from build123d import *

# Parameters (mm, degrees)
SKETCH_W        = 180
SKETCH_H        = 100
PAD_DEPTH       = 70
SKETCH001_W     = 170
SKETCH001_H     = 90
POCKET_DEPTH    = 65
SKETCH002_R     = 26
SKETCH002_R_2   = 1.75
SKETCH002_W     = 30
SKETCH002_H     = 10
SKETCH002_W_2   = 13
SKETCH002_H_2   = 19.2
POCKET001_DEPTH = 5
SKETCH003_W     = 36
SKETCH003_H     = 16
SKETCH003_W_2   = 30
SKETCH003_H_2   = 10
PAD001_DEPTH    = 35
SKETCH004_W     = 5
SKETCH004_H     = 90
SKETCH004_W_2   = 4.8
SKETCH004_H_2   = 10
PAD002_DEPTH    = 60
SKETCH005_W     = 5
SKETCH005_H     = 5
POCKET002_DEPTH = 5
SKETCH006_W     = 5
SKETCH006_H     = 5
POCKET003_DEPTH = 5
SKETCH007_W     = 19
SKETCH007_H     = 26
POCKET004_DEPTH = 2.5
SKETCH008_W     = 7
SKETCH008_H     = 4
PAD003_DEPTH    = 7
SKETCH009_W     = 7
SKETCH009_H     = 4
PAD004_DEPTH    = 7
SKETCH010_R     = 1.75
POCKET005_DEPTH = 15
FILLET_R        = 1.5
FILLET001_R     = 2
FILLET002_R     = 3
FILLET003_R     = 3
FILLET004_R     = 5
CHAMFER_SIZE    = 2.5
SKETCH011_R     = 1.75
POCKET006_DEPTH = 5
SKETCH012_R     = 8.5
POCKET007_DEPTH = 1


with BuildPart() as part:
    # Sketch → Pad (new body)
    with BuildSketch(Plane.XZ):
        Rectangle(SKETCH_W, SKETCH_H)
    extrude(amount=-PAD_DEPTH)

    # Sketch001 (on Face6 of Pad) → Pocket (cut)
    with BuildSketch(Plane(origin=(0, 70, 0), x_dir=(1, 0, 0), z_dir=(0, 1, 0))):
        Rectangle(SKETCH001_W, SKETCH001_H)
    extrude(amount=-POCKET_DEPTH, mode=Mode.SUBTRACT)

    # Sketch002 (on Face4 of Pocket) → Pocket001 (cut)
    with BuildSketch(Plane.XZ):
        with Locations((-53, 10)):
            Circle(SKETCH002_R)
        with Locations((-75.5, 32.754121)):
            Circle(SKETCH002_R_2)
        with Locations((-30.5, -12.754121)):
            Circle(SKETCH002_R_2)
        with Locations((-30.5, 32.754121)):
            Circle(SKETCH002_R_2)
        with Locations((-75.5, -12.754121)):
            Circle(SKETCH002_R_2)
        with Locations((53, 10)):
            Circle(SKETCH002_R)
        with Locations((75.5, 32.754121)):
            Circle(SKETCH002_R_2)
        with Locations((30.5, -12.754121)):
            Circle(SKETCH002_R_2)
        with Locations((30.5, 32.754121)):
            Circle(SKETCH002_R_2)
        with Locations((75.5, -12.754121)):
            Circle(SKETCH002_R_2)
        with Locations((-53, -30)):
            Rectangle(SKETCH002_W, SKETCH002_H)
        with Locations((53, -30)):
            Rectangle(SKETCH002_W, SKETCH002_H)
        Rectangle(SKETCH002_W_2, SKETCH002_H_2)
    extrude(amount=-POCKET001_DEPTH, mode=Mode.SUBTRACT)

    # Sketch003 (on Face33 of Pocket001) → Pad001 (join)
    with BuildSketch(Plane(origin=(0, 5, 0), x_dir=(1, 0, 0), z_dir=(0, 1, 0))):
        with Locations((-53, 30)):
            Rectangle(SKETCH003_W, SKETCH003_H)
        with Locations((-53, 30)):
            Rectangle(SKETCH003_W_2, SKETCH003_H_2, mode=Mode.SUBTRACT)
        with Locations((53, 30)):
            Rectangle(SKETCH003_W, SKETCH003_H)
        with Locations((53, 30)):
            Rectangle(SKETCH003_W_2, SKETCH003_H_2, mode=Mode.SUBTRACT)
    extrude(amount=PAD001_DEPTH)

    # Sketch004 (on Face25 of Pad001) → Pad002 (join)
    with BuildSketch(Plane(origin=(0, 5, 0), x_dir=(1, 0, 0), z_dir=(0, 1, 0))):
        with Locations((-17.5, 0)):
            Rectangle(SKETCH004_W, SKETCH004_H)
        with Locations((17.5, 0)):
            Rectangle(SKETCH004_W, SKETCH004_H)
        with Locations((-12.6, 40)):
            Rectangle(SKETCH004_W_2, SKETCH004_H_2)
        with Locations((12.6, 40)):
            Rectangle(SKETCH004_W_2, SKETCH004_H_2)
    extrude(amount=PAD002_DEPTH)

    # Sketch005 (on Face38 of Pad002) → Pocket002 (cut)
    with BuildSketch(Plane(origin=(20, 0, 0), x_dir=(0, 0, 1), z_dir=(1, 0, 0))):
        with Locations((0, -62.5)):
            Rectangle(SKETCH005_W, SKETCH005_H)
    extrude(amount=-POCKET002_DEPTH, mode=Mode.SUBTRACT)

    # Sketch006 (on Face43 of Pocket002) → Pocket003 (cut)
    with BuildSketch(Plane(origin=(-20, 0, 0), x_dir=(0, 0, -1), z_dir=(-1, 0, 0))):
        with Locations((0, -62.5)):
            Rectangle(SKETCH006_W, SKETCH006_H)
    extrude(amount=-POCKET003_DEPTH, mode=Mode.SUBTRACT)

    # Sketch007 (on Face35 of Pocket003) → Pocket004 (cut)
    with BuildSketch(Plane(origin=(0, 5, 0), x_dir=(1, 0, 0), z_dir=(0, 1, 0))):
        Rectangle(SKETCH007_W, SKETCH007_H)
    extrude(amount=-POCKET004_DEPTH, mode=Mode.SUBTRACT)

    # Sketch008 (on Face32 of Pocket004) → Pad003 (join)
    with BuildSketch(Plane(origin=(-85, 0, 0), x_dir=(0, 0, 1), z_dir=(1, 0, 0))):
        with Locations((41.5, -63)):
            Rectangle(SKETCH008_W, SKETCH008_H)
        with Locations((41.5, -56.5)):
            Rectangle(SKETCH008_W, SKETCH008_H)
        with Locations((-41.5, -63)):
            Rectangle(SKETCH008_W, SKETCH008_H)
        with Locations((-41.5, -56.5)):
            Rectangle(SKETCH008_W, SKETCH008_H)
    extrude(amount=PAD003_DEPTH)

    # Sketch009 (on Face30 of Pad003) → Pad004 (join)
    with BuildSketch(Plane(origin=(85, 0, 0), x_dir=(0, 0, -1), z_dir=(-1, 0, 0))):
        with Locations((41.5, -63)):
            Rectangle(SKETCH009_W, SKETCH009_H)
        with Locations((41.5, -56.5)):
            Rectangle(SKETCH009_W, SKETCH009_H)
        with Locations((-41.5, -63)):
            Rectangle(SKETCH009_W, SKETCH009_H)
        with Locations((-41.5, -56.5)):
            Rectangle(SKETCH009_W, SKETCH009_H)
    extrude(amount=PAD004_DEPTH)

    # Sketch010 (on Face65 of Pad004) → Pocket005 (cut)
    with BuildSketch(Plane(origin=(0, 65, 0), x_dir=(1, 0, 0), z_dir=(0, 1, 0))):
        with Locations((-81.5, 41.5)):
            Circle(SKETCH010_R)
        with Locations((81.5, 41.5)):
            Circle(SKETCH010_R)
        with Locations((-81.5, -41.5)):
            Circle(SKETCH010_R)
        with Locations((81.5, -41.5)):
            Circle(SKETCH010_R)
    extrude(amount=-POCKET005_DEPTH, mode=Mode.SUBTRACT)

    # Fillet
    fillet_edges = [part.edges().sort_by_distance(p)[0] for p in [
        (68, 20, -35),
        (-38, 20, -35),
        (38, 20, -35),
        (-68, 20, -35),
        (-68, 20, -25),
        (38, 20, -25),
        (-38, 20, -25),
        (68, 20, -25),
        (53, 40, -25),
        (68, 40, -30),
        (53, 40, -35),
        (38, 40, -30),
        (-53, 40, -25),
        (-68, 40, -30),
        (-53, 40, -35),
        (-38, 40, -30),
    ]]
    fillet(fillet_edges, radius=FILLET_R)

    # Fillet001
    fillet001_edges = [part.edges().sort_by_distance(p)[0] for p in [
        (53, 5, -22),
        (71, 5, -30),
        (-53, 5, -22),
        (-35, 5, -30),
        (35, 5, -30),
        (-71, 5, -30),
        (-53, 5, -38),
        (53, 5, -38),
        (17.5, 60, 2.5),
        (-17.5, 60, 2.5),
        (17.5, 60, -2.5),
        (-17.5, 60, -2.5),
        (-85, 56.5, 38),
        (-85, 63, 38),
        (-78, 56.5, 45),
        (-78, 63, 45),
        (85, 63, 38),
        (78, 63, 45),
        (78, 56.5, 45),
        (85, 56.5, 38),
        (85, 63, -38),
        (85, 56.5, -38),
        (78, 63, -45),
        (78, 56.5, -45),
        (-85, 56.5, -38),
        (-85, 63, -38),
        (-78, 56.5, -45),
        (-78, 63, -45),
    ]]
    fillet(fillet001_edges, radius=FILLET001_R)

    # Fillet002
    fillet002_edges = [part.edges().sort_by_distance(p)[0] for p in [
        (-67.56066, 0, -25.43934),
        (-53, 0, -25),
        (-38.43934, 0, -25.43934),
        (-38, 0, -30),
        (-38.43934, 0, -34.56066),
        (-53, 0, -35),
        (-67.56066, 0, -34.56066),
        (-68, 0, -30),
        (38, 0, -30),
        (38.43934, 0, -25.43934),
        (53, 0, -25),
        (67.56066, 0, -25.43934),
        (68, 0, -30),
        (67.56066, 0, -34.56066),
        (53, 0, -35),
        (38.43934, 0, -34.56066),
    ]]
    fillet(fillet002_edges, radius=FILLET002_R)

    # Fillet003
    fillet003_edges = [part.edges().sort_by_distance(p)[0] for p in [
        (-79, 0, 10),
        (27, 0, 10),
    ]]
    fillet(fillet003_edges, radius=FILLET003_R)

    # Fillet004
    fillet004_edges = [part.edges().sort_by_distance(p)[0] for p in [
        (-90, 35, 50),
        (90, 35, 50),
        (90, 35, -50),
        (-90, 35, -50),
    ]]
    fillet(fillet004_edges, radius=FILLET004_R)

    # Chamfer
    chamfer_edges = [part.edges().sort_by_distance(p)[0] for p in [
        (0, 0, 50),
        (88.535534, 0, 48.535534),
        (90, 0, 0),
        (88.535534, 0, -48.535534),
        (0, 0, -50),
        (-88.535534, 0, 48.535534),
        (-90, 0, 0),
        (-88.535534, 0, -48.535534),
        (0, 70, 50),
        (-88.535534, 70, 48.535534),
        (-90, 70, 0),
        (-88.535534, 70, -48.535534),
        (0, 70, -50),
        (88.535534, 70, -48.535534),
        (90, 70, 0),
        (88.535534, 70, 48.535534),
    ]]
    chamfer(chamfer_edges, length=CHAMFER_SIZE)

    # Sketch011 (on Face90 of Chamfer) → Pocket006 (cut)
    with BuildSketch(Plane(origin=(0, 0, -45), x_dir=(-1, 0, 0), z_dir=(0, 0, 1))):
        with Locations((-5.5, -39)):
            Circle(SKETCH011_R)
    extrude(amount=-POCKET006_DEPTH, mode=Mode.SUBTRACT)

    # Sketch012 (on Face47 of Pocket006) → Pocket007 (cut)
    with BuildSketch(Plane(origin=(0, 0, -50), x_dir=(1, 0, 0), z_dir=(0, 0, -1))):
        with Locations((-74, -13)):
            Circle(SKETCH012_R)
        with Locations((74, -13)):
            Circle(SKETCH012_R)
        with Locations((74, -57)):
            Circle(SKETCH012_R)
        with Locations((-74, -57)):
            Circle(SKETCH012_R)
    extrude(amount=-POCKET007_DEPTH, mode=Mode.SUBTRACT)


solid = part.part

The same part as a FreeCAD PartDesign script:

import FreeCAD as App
import Part
import Sketcher


def edges_at(feature, points):
    """Names of the edges that pass closest to the given points."""
    edges = feature.Shape.Edges
    near = lambda p: min(range(len(edges)), key=lambda i: edges[i].distToShape(Part.Vertex(*p))[0])
    return sorted({f"Edge{near(p) + 1}" for p in points})

doc = App.newDocument("Part")
params = doc.addObject("Spreadsheet::Sheet", "Params")
for row, (alias, value) in enumerate([
    ("sketch1_width", "180 mm"),
    ("sketch1_height", "100 mm"),
    ("pad1_length", "70 mm"),
    ("sketch2_width", "170 mm"),
    ("sketch2_height", "90 mm"),
    ("pocket1_length", "65 mm"),
    ("sketch3_diameter", "52 mm"),
    ("sketch3_diameter2", "3.5 mm"),
    ("sketch3_width", "30 mm"),
    ("sketch3_width2", "13 mm"),
    ("sketch3_height", "10 mm"),
    ("pocket2_length", "5 mm"),
    ("sketch4_width", "36 mm"),
    ("sketch4_width2", "30 mm"),
    ("sketch4_height", "16 mm"),
    ("sketch4_height2", "10 mm"),
    ("pad2_length", "35 mm"),
    ("sketch5_width", "5 mm"),
    ("sketch5_height", "90 mm"),
    ("sketch5_height2", "80 mm"),
    ("sketch5_width2", "4.8 mm"),
    ("pad3_length", "60 mm"),
    ("sketch6_width", "5 mm"),
    ("pocket3_length", "5 mm"),
    ("sketch7_width", "5 mm"),
    ("pocket4_length", "5 mm"),
    ("sketch8_width", "19 mm"),
    ("sketch8_height", "26 mm"),
    ("pocket5_length", "2.5 mm"),
    ("sketch9_width", "4 mm"),
    ("sketch9_height", "7 mm"),
    ("pad4_length", "7 mm"),
    ("sketch10_width", "4 mm"),
    ("sketch10_height", "7 mm"),
    ("pad5_length", "7 mm"),
    ("sketch11_diameter", "3.5 mm"),
    ("pocket6_length", "15 mm"),
    ("fillet_radius", "1.5 mm"),
    ("fillet2_radius", "2 mm"),
    ("fillet3_radius", "3 mm"),
    ("fillet4_radius", "3 mm"),
    ("fillet5_radius", "5 mm"),
    ("chamfer_size", "2.5 mm"),
    ("sketch12_diameter", "3.5 mm"),
    ("pocket7_length", "5 mm"),
    ("sketch13_diameter", "17 mm"),
    ("pocket8_length", "1 mm"),
], start=1):
    params.set(f"A{row}", alias)
    params.set(f"B{row}", "=" + value)
    params.setAlias(f"B{row}", alias)

body = doc.addObject("PartDesign::Body", "Body")

# Sketch on XZ plane
sketch1 = doc.addObject("Sketcher::SketchObject", "Sketch")
body.addObject(sketch1)
sketch1.AttachmentSupport = (doc.XZ_Plane, [""])
sketch1.MapMode = "FlatFace"
sketch1.addGeometry([
    Part.LineSegment(App.Vector(-90, 50, 0), App.Vector(-90, -50, 0)),
    Part.LineSegment(App.Vector(-90, -50, 0), App.Vector(90, -50, 0)),
    Part.LineSegment(App.Vector(90, -50, 0), App.Vector(90, 50, 0)),
    Part.LineSegment(App.Vector(90, 50, 0), App.Vector(-90, 50, 0)),
], False)
sketch1.addConstraint([
    Sketcher.Constraint("Coincident", 0, 2, 1, 1),
    Sketcher.Constraint("Coincident", 1, 2, 2, 1),
    Sketcher.Constraint("Coincident", 2, 2, 3, 1),
    Sketcher.Constraint("Coincident", 3, 2, 0, 1),
    Sketcher.Constraint("Vertical", 0),
    Sketcher.Constraint("Horizontal", 1),
    Sketcher.Constraint("Vertical", 2),
    Sketcher.Constraint("Horizontal", 3),
    Sketcher.Constraint("Symmetric", 0, 2, 2, 2, -1, 1),
    Sketcher.Constraint("DistanceX", 1, 1, 1, 2, 180.0),
    Sketcher.Constraint("DistanceY", 0, 2, 0, 1, 100.0),
])
sketch1.setExpression("Constraints[9]", "Params.sketch1_width")
sketch1.setExpression("Constraints[10]", "Params.sketch1_height")
pad1 = doc.addObject("PartDesign::Pad", "Pad")
body.addObject(pad1)
pad1.Profile = sketch1
pad1.setExpression("Length", "Params.pad1_length")
pad1.Reversed = True

# Sketch on XZ plane
sketch2 = doc.addObject("Sketcher::SketchObject", "Sketch001")
body.addObject(sketch2)
sketch2.AttachmentSupport = (doc.XZ_Plane, [""])
sketch2.MapMode = "FlatFace"
sketch2.AttachmentOffset = App.Placement(App.Vector(0, 0, -70), App.Rotation())
sketch2.addGeometry([
    Part.LineSegment(App.Vector(-85, -45, 0), App.Vector(-85, 45, 0)),
    Part.LineSegment(App.Vector(-85, 45, 0), App.Vector(85, 45, 0)),
    Part.LineSegment(App.Vector(85, 45, 0), App.Vector(85, -45, 0)),
    Part.LineSegment(App.Vector(85, -45, 0), App.Vector(-85, -45, 0)),
], False)
sketch2.addConstraint([
    Sketcher.Constraint("Coincident", 0, 2, 1, 1),
    Sketcher.Constraint("Coincident", 1, 2, 2, 1),
    Sketcher.Constraint("Coincident", 2, 2, 3, 1),
    Sketcher.Constraint("Coincident", 3, 2, 0, 1),
    Sketcher.Constraint("Vertical", 0),
    Sketcher.Constraint("Horizontal", 1),
    Sketcher.Constraint("Vertical", 2),
    Sketcher.Constraint("Horizontal", 3),
    Sketcher.Constraint("Symmetric", 0, 2, 2, 2, -1, 1),
    Sketcher.Constraint("DistanceX", 1, 1, 1, 2, 170.0),
    Sketcher.Constraint("DistanceY", 0, 1, 0, 2, 90.0),
])
sketch2.setExpression("Constraints[9]", "Params.sketch2_width")
sketch2.setExpression("Constraints[10]", "Params.sketch2_height")
pocket1 = doc.addObject("PartDesign::Pocket", "Pocket")
body.addObject(pocket1)
pocket1.Profile = sketch2
pocket1.setExpression("Length", "Params.pocket1_length")
pocket1.Reversed = True

# Sketch on XZ plane
sketch3 = doc.addObject("Sketcher::SketchObject", "Sketch002")
body.addObject(sketch3)
sketch3.AttachmentSupport = (doc.XZ_Plane, [""])
sketch3.MapMode = "FlatFace"
sketch3.addGeometry([
    Part.Circle(App.Vector(-53, 10, 0), App.Vector(0, 0, 1), 26),  # 0
    Part.Circle(App.Vector(-75.5, 32.754121, 0), App.Vector(0, 0, 1), 1.75),  # 1
    Part.Circle(App.Vector(-30.5, -12.754121, 0), App.Vector(0, 0, 1), 1.75),  # 2
    Part.Circle(App.Vector(-30.5, 32.754121, 0), App.Vector(0, 0, 1), 1.75),  # 3
    Part.Circle(App.Vector(-75.5, -12.754121, 0), App.Vector(0, 0, 1), 1.75),  # 4
    Part.Circle(App.Vector(53, 10, 0), App.Vector(0, 0, 1), 26),  # 5
    Part.Circle(App.Vector(75.5, 32.754121, 0), App.Vector(0, 0, 1), 1.75),  # 6
    Part.Circle(App.Vector(30.5, -12.754121, 0), App.Vector(0, 0, 1), 1.75),  # 7
    Part.Circle(App.Vector(30.5, 32.754121, 0), App.Vector(0, 0, 1), 1.75),  # 8
    Part.Circle(App.Vector(75.5, -12.754121, 0), App.Vector(0, 0, 1), 1.75),  # 9
    Part.LineSegment(App.Vector(-68, -25, 0), App.Vector(-68, -35, 0)),  # 10
    Part.LineSegment(App.Vector(-68, -35, 0), App.Vector(-38, -35, 0)),  # 11
    Part.LineSegment(App.Vector(-38, -35, 0), App.Vector(-38, -25, 0)),  # 12
    Part.LineSegment(App.Vector(-38, -25, 0), App.Vector(-68, -25, 0)),  # 13
    Part.LineSegment(App.Vector(38, -25, 0), App.Vector(38, -35, 0)),  # 14
    Part.LineSegment(App.Vector(38, -35, 0), App.Vector(68, -35, 0)),  # 15
    Part.LineSegment(App.Vector(68, -35, 0), App.Vector(68, -25, 0)),  # 16
    Part.LineSegment(App.Vector(68, -25, 0), App.Vector(38, -25, 0)),  # 17
    Part.LineSegment(App.Vector(-6.5, 9.6, 0), App.Vector(-6.5, -9.6, 0)),  # 18
    Part.LineSegment(App.Vector(-6.5, -9.6, 0), App.Vector(6.5, -9.6, 0)),  # 19
    Part.LineSegment(App.Vector(6.5, -9.6, 0), App.Vector(6.5, 9.6, 0)),  # 20
    Part.LineSegment(App.Vector(6.5, 9.6, 0), App.Vector(-6.5, 9.6, 0)),  # 21
], False)
sketch3.addConstraint([
    Sketcher.Constraint("Coincident", 10, 2, 11, 1),
    Sketcher.Constraint("Coincident", 11, 2, 12, 1),
    Sketcher.Constraint("Coincident", 12, 2, 13, 1),
    Sketcher.Constraint("Coincident", 13, 2, 10, 1),
    Sketcher.Constraint("Coincident", 14, 2, 15, 1),
    Sketcher.Constraint("Coincident", 15, 2, 16, 1),
    Sketcher.Constraint("Coincident", 16, 2, 17, 1),
    Sketcher.Constraint("Coincident", 17, 2, 14, 1),
    Sketcher.Constraint("Coincident", 18, 2, 19, 1),
    Sketcher.Constraint("Coincident", 19, 2, 20, 1),
    Sketcher.Constraint("Coincident", 20, 2, 21, 1),
    Sketcher.Constraint("Coincident", 21, 2, 18, 1),
    Sketcher.Constraint("Vertical", 10),
    Sketcher.Constraint("Horizontal", 11),
    Sketcher.Constraint("Vertical", 12),
    Sketcher.Constraint("Horizontal", 13),
    Sketcher.Constraint("Vertical", 14),
    Sketcher.Constraint("Horizontal", 15),
    Sketcher.Constraint("Vertical", 16),
    Sketcher.Constraint("Horizontal", 17),
    Sketcher.Constraint("Vertical", 18),
    Sketcher.Constraint("Horizontal", 19),
    Sketcher.Constraint("Vertical", 20),
    Sketcher.Constraint("Horizontal", 21),
    Sketcher.Constraint("Equal", 1, 2),
    Sketcher.Constraint("Equal", 2, 3),
    Sketcher.Constraint("Equal", 3, 4),
    Sketcher.Constraint("Equal", 0, 5),
    Sketcher.Constraint("Equal", 4, 6),
    Sketcher.Constraint("Equal", 6, 7),
    Sketcher.Constraint("Equal", 7, 8),
    Sketcher.Constraint("Equal", 8, 9),
    Sketcher.Constraint("Symmetric", 18, 2, 20, 2, -1, 1),
    Sketcher.Constraint("Symmetric", 0, 3, 5, 3, -2),
    Sketcher.Constraint("Symmetric", 1, 3, 6, 3, -2),
    Sketcher.Constraint("Symmetric", 2, 3, 7, 3, -2),
    Sketcher.Constraint("Symmetric", 3, 3, 8, 3, -2),
    Sketcher.Constraint("Symmetric", 4, 3, 9, 3, -2),
    Sketcher.Constraint("Symmetric", 11, 2, 14, 2, -2),
    Sketcher.Constraint("Symmetric", 13, 2, 16, 2, -2),
    Sketcher.Constraint("Horizontal", 1, 3, 3, 3),
    Sketcher.Constraint("Horizontal", 2, 3, 4, 3),
    Sketcher.Constraint("Vertical", 2, 3, 3, 3),
    Sketcher.Constraint("Vertical", 1, 3, 4, 3),
    Sketcher.Constraint("Diameter", 0, 52.0),
    Sketcher.Constraint("Diameter", 1, 3.5),
    Sketcher.Constraint("DistanceX", 11, 1, 11, 2, 30.0),
    Sketcher.Constraint("DistanceX", 19, 1, 19, 2, 13.0),
    Sketcher.Constraint("DistanceY", 10, 2, 10, 1, 10.0),
    Sketcher.Constraint("DistanceY", 18, 2, 18, 1, 19.2),
    Sketcher.Constraint("DistanceX", 0, 3, -1, 1, 53.0),
    Sketcher.Constraint("DistanceY", -1, 1, 0, 3, 10.0),
    Sketcher.Constraint("DistanceX", 10, 2, -1, 1, 68.0),
    Sketcher.Constraint("DistanceY", 10, 2, -1, 1, 35.0),
    Sketcher.Constraint("DistanceX", 1, 3, 2, 3, 45.0),
    Sketcher.Constraint("DistanceX", 3, 3, 6, 3, 106.0),
    Sketcher.Constraint("DistanceY", -1, 1, 1, 3, 32.754121),
    Sketcher.Constraint("DistanceY", 2, 3, -1, 1, 12.754121),
])
sketch3.setExpression("Constraints[44]", "Params.sketch3_diameter")
sketch3.setExpression("Constraints[45]", "Params.sketch3_diameter2")
sketch3.setExpression("Constraints[46]", "Params.sketch3_width")
sketch3.setExpression("Constraints[47]", "Params.sketch3_width2")
sketch3.setExpression("Constraints[48]", "Params.sketch3_height")
pocket2 = doc.addObject("PartDesign::Pocket", "Pocket001")
body.addObject(pocket2)
pocket2.Profile = sketch3
pocket2.setExpression("Length", "Params.pocket2_length")

# Sketch on XZ plane
sketch4 = doc.addObject("Sketcher::SketchObject", "Sketch003")
body.addObject(sketch4)
sketch4.AttachmentSupport = (doc.XZ_Plane, [""])
sketch4.MapMode = "FlatFace"
sketch4.AttachmentOffset = App.Placement(App.Vector(0, 0, -5), App.Rotation())
sketch4.addGeometry([
    Part.LineSegment(App.Vector(-71, -38, 0), App.Vector(-71, -22, 0)),  # 0
    Part.LineSegment(App.Vector(-71, -22, 0), App.Vector(-35, -22, 0)),  # 1
    Part.LineSegment(App.Vector(-35, -22, 0), App.Vector(-35, -38, 0)),  # 2
    Part.LineSegment(App.Vector(-35, -38, 0), App.Vector(-71, -38, 0)),  # 3
    Part.LineSegment(App.Vector(-38, -25, 0), App.Vector(-68, -25, 0)),  # 4
    Part.LineSegment(App.Vector(-68, -25, 0), App.Vector(-68, -35, 0)),  # 5
    Part.LineSegment(App.Vector(-68, -35, 0), App.Vector(-38, -35, 0)),  # 6
    Part.LineSegment(App.Vector(-38, -35, 0), App.Vector(-38, -25, 0)),  # 7
    Part.LineSegment(App.Vector(35, -38, 0), App.Vector(35, -22, 0)),  # 8
    Part.LineSegment(App.Vector(35, -22, 0), App.Vector(71, -22, 0)),  # 9
    Part.LineSegment(App.Vector(71, -22, 0), App.Vector(71, -38, 0)),  # 10
    Part.LineSegment(App.Vector(71, -38, 0), App.Vector(35, -38, 0)),  # 11
    Part.LineSegment(App.Vector(68, -25, 0), App.Vector(38, -25, 0)),  # 12
    Part.LineSegment(App.Vector(38, -25, 0), App.Vector(38, -35, 0)),  # 13
    Part.LineSegment(App.Vector(38, -35, 0), App.Vector(68, -35, 0)),  # 14
    Part.LineSegment(App.Vector(68, -35, 0), App.Vector(68, -25, 0)),  # 15
], False)
sketch4.addConstraint([
    Sketcher.Constraint("Coincident", 0, 2, 1, 1),
    Sketcher.Constraint("Coincident", 1, 2, 2, 1),
    Sketcher.Constraint("Coincident", 2, 2, 3, 1),
    Sketcher.Constraint("Coincident", 3, 2, 0, 1),
    Sketcher.Constraint("Coincident", 4, 2, 5, 1),
    Sketcher.Constraint("Coincident", 5, 2, 6, 1),
    Sketcher.Constraint("Coincident", 6, 2, 7, 1),
    Sketcher.Constraint("Coincident", 7, 2, 4, 1),
    Sketcher.Constraint("Coincident", 8, 2, 9, 1),
    Sketcher.Constraint("Coincident", 9, 2, 10, 1),
    Sketcher.Constraint("Coincident", 10, 2, 11, 1),
    Sketcher.Constraint("Coincident", 11, 2, 8, 1),
    Sketcher.Constraint("Coincident", 12, 2, 13, 1),
    Sketcher.Constraint("Coincident", 13, 2, 14, 1),
    Sketcher.Constraint("Coincident", 14, 2, 15, 1),
    Sketcher.Constraint("Coincident", 15, 2, 12, 1),
    Sketcher.Constraint("Vertical", 0),
    Sketcher.Constraint("Horizontal", 1),
    Sketcher.Constraint("Vertical", 2),
    Sketcher.Constraint("Horizontal", 3),
    Sketcher.Constraint("Horizontal", 4),
    Sketcher.Constraint("Vertical", 5),
    Sketcher.Constraint("Horizontal", 6),
    Sketcher.Constraint("Vertical", 7),
    Sketcher.Constraint("Vertical", 8),
    Sketcher.Constraint("Horizontal", 9),
    Sketcher.Constraint("Vertical", 10),
    Sketcher.Constraint("Horizontal", 11),
    Sketcher.Constraint("Horizontal", 12),
    Sketcher.Constraint("Vertical", 13),
    Sketcher.Constraint("Horizontal", 14),
    Sketcher.Constraint("Vertical", 15),
    Sketcher.Constraint("Symmetric", 1, 2, 8, 2, -2),
    Sketcher.Constraint("Symmetric", 3, 2, 10, 2, -2),
    Sketcher.Constraint("Symmetric", 7, 2, 12, 2, -2),
    Sketcher.Constraint("Symmetric", 5, 2, 14, 2, -2),
    Sketcher.Constraint("DistanceX", 1, 1, 1, 2, 36.0),
    Sketcher.Constraint("DistanceX", 4, 2, 4, 1, 30.0),
    Sketcher.Constraint("DistanceY", 0, 1, 0, 2, 16.0),
    Sketcher.Constraint("DistanceY", 5, 2, 5, 1, 10.0),
    Sketcher.Constraint("DistanceX", 0, 2, -1, 1, 71.0),
    Sketcher.Constraint("DistanceY", 0, 2, -1, 1, 22.0),
    Sketcher.Constraint("DistanceX", 4, 2, -1, 1, 68.0),
    Sketcher.Constraint("DistanceY", 4, 2, -1, 1, 25.0),
])
sketch4.setExpression("Constraints[36]", "Params.sketch4_width")
sketch4.setExpression("Constraints[37]", "Params.sketch4_width2")
sketch4.setExpression("Constraints[38]", "Params.sketch4_height")
sketch4.setExpression("Constraints[39]", "Params.sketch4_height2")
pad2 = doc.addObject("PartDesign::Pad", "Pad001")
body.addObject(pad2)
pad2.Profile = sketch4
pad2.setExpression("Length", "Params.pad2_length")
pad2.Reversed = True

# Sketch on XZ plane
sketch5 = doc.addObject("Sketcher::SketchObject", "Sketch004")
body.addObject(sketch5)
sketch5.AttachmentSupport = (doc.XZ_Plane, [""])
sketch5.MapMode = "FlatFace"
sketch5.AttachmentOffset = App.Placement(App.Vector(0, 0, -5), App.Rotation())
sketch5.addGeometry([
    Part.LineSegment(App.Vector(-20, -45, 0), App.Vector(-20, 45, 0)),  # 0
    Part.LineSegment(App.Vector(-20, 45, 0), App.Vector(-15, 45, 0)),  # 1
    Part.LineSegment(App.Vector(-15, 45, 0), App.Vector(-15, -35, 0)),  # 2
    Part.LineSegment(App.Vector(-15, -35, 0), App.Vector(-10.2, -35, 0)),  # 3
    Part.LineSegment(App.Vector(-10.2, -35, 0), App.Vector(-10.2, -45, 0)),  # 4
    Part.LineSegment(App.Vector(-10.2, -45, 0), App.Vector(-20, -45, 0)),  # 5
    Part.LineSegment(App.Vector(15, -35, 0), App.Vector(15, 45, 0)),  # 6
    Part.LineSegment(App.Vector(15, 45, 0), App.Vector(20, 45, 0)),  # 7
    Part.LineSegment(App.Vector(20, 45, 0), App.Vector(20, -45, 0)),  # 8
    Part.LineSegment(App.Vector(20, -45, 0), App.Vector(10.2, -45, 0)),  # 9
    Part.LineSegment(App.Vector(10.2, -45, 0), App.Vector(10.2, -35, 0)),  # 10
    Part.LineSegment(App.Vector(10.2, -35, 0), App.Vector(15, -35, 0)),  # 11
], False)
sketch5.addConstraint([
    Sketcher.Constraint("Coincident", 0, 2, 1, 1),
    Sketcher.Constraint("Coincident", 1, 2, 2, 1),
    Sketcher.Constraint("Coincident", 2, 2, 3, 1),
    Sketcher.Constraint("Coincident", 3, 2, 4, 1),
    Sketcher.Constraint("Coincident", 4, 2, 5, 1),
    Sketcher.Constraint("Coincident", 5, 2, 0, 1),
    Sketcher.Constraint("Coincident", 6, 2, 7, 1),
    Sketcher.Constraint("Coincident", 7, 2, 8, 1),
    Sketcher.Constraint("Coincident", 8, 2, 9, 1),
    Sketcher.Constraint("Coincident", 9, 2, 10, 1),
    Sketcher.Constraint("Coincident", 10, 2, 11, 1),
    Sketcher.Constraint("Coincident", 11, 2, 6, 1),
    Sketcher.Constraint("Vertical", 0),
    Sketcher.Constraint("Horizontal", 1),
    Sketcher.Constraint("Vertical", 2),
    Sketcher.Constraint("Horizontal", 3),
    Sketcher.Constraint("Vertical", 4),
    Sketcher.Constraint("Horizontal", 5),
    Sketcher.Constraint("Vertical", 6),
    Sketcher.Constraint("Horizontal", 7),
    Sketcher.Constraint("Vertical", 8),
    Sketcher.Constraint("Horizontal", 9),
    Sketcher.Constraint("Vertical", 10),
    Sketcher.Constraint("Horizontal", 11),
    Sketcher.Constraint("Symmetric", 5, 2, 7, 2, -1, 1),
    Sketcher.Constraint("Symmetric", 1, 2, 6, 2, -2),
    Sketcher.Constraint("Symmetric", 4, 2, 9, 2, -2),
    Sketcher.Constraint("Horizontal", 3, 2, 10, 2),
    Sketcher.Constraint("DistanceX", 1, 1, 1, 2, 5.0),
    Sketcher.Constraint("DistanceY", 0, 1, 0, 2, 90.0),
    Sketcher.Constraint("DistanceY", 2, 2, 2, 1, 80.0),
    Sketcher.Constraint("DistanceX", 3, 1, 3, 2, 4.8),
    Sketcher.Constraint("DistanceX", 0, 2, -1, 1, 20.0),
])
sketch5.setExpression("Constraints[28]", "Params.sketch5_width")
sketch5.setExpression("Constraints[29]", "Params.sketch5_height")
sketch5.setExpression("Constraints[30]", "Params.sketch5_height2")
sketch5.setExpression("Constraints[31]", "Params.sketch5_width2")
pad3 = doc.addObject("PartDesign::Pad", "Pad002")
body.addObject(pad3)
pad3.Profile = sketch5
pad3.setExpression("Length", "Params.pad3_length")
pad3.Reversed = True

# Sketch on YZ plane
sketch6 = doc.addObject("Sketcher::SketchObject", "Sketch005")
body.addObject(sketch6)
sketch6.AttachmentSupport = (doc.YZ_Plane, [""])
sketch6.MapMode = "FlatFace"
sketch6.AttachmentOffset = App.Placement(App.Vector(0, 0, 20), App.Rotation())
sketch6.addGeometry([
    Part.LineSegment(App.Vector(60, -2.5, 0), App.Vector(65, -2.5, 0)),
    Part.LineSegment(App.Vector(65, -2.5, 0), App.Vector(65, 2.5, 0)),
    Part.LineSegment(App.Vector(65, 2.5, 0), App.Vector(60, 2.5, 0)),
    Part.LineSegment(App.Vector(60, 2.5, 0), App.Vector(60, -2.5, 0)),
], False)
sketch6.addConstraint([
    Sketcher.Constraint("Coincident", 0, 2, 1, 1),
    Sketcher.Constraint("Coincident", 1, 2, 2, 1),
    Sketcher.Constraint("Coincident", 2, 2, 3, 1),
    Sketcher.Constraint("Coincident", 3, 2, 0, 1),
    Sketcher.Constraint("Horizontal", 0),
    Sketcher.Constraint("Vertical", 1),
    Sketcher.Constraint("Horizontal", 2),
    Sketcher.Constraint("Vertical", 3),
    Sketcher.Constraint("Equal", 2, 1),
    Sketcher.Constraint("DistanceX", 0, 1, 0, 2, 5.0),
    Sketcher.Constraint("DistanceX", -1, 1, 0, 2, 65.0),
    Sketcher.Constraint("DistanceY", 0, 2, -1, 1, 2.5),
])
sketch6.setExpression("Constraints[9]", "Params.sketch6_width")
pocket3 = doc.addObject("PartDesign::Pocket", "Pocket002")
body.addObject(pocket3)
pocket3.Profile = sketch6
pocket3.setExpression("Length", "Params.pocket3_length")

# Sketch on YZ plane
sketch7 = doc.addObject("Sketcher::SketchObject", "Sketch006")
body.addObject(sketch7)
sketch7.AttachmentSupport = (doc.YZ_Plane, [""])
sketch7.MapMode = "FlatFace"
sketch7.AttachmentOffset = App.Placement(App.Vector(0, 0, -20), App.Rotation())
sketch7.addGeometry([
    Part.LineSegment(App.Vector(60, 2.5, 0), App.Vector(65, 2.5, 0)),
    Part.LineSegment(App.Vector(65, 2.5, 0), App.Vector(65, -2.5, 0)),
    Part.LineSegment(App.Vector(65, -2.5, 0), App.Vector(60, -2.5, 0)),
    Part.LineSegment(App.Vector(60, -2.5, 0), App.Vector(60, 2.5, 0)),
], False)
sketch7.addConstraint([
    Sketcher.Constraint("Coincident", 0, 2, 1, 1),
    Sketcher.Constraint("Coincident", 1, 2, 2, 1),
    Sketcher.Constraint("Coincident", 2, 2, 3, 1),
    Sketcher.Constraint("Coincident", 3, 2, 0, 1),
    Sketcher.Constraint("Horizontal", 0),
    Sketcher.Constraint("Vertical", 1),
    Sketcher.Constraint("Horizontal", 2),
    Sketcher.Constraint("Vertical", 3),
    Sketcher.Constraint("Equal", 2, 1),
    Sketcher.Constraint("DistanceX", 0, 1, 0, 2, 5.0),
    Sketcher.Constraint("DistanceX", -1, 1, 0, 2, 65.0),
    Sketcher.Constraint("DistanceY", -1, 1, 0, 2, 2.5),
])
sketch7.setExpression("Constraints[9]", "Params.sketch7_width")
pocket4 = doc.addObject("PartDesign::Pocket", "Pocket003")
body.addObject(pocket4)
pocket4.Profile = sketch7
pocket4.setExpression("Length", "Params.pocket4_length")
pocket4.Reversed = True

# Sketch on XZ plane
sketch8 = doc.addObject("Sketcher::SketchObject", "Sketch007")
body.addObject(sketch8)
sketch8.AttachmentSupport = (doc.XZ_Plane, [""])
sketch8.MapMode = "FlatFace"
sketch8.AttachmentOffset = App.Placement(App.Vector(0, 0, -5), App.Rotation())
sketch8.addGeometry([
    Part.LineSegment(App.Vector(-9.5, -13, 0), App.Vector(-9.5, 13, 0)),
    Part.LineSegment(App.Vector(-9.5, 13, 0), App.Vector(9.5, 13, 0)),
    Part.LineSegment(App.Vector(9.5, 13, 0), App.Vector(9.5, -13, 0)),
    Part.LineSegment(App.Vector(9.5, -13, 0), App.Vector(-9.5, -13, 0)),
], False)
sketch8.addConstraint([
    Sketcher.Constraint("Coincident", 0, 2, 1, 1),
    Sketcher.Constraint("Coincident", 1, 2, 2, 1),
    Sketcher.Constraint("Coincident", 2, 2, 3, 1),
    Sketcher.Constraint("Coincident", 3, 2, 0, 1),
    Sketcher.Constraint("Vertical", 0),
    Sketcher.Constraint("Horizontal", 1),
    Sketcher.Constraint("Vertical", 2),
    Sketcher.Constraint("Horizontal", 3),
    Sketcher.Constraint("Symmetric", 0, 2, 2, 2, -1, 1),
    Sketcher.Constraint("DistanceX", 1, 1, 1, 2, 19.0),
    Sketcher.Constraint("DistanceY", 0, 1, 0, 2, 26.0),
])
sketch8.setExpression("Constraints[9]", "Params.sketch8_width")
sketch8.setExpression("Constraints[10]", "Params.sketch8_height")
pocket5 = doc.addObject("PartDesign::Pocket", "Pocket004")
body.addObject(pocket5)
pocket5.Profile = sketch8
pocket5.setExpression("Length", "Params.pocket5_length")
pocket5.Reversed = True

# Sketch on YZ plane
sketch9 = doc.addObject("Sketcher::SketchObject", "Sketch008")
body.addObject(sketch9)
sketch9.AttachmentSupport = (doc.YZ_Plane, [""])
sketch9.MapMode = "FlatFace"
sketch9.AttachmentOffset = App.Placement(App.Vector(0, 0, -85), App.Rotation())
sketch9.addGeometry([
    Part.LineSegment(App.Vector(61, 38, 0), App.Vector(65, 38, 0)),  # 0
    Part.LineSegment(App.Vector(65, 38, 0), App.Vector(65, 45, 0)),  # 1
    Part.LineSegment(App.Vector(65, 45, 0), App.Vector(61, 45, 0)),  # 2
    Part.LineSegment(App.Vector(61, 45, 0), App.Vector(61, 38, 0)),  # 3
    Part.LineSegment(App.Vector(54.5, 38, 0), App.Vector(58.5, 38, 0)),  # 4
    Part.LineSegment(App.Vector(58.5, 38, 0), App.Vector(58.5, 45, 0)),  # 5
    Part.LineSegment(App.Vector(58.5, 45, 0), App.Vector(54.5, 45, 0)),  # 6
    Part.LineSegment(App.Vector(54.5, 45, 0), App.Vector(54.5, 38, 0)),  # 7
    Part.LineSegment(App.Vector(61, -45, 0), App.Vector(65, -45, 0)),  # 8
    Part.LineSegment(App.Vector(65, -45, 0), App.Vector(65, -38, 0)),  # 9
    Part.LineSegment(App.Vector(65, -38, 0), App.Vector(61, -38, 0)),  # 10
    Part.LineSegment(App.Vector(61, -38, 0), App.Vector(61, -45, 0)),  # 11
    Part.LineSegment(App.Vector(54.5, -45, 0), App.Vector(58.5, -45, 0)),  # 12
    Part.LineSegment(App.Vector(58.5, -45, 0), App.Vector(58.5, -38, 0)),  # 13
    Part.LineSegment(App.Vector(58.5, -38, 0), App.Vector(54.5, -38, 0)),  # 14
    Part.LineSegment(App.Vector(54.5, -38, 0), App.Vector(54.5, -45, 0)),  # 15
], False)
sketch9.addConstraint([
    Sketcher.Constraint("Coincident", 0, 2, 1, 1),
    Sketcher.Constraint("Coincident", 1, 2, 2, 1),
    Sketcher.Constraint("Coincident", 2, 2, 3, 1),
    Sketcher.Constraint("Coincident", 3, 2, 0, 1),
    Sketcher.Constraint("Coincident", 4, 2, 5, 1),
    Sketcher.Constraint("Coincident", 5, 2, 6, 1),
    Sketcher.Constraint("Coincident", 6, 2, 7, 1),
    Sketcher.Constraint("Coincident", 7, 2, 4, 1),
    Sketcher.Constraint("Coincident", 8, 2, 9, 1),
    Sketcher.Constraint("Coincident", 9, 2, 10, 1),
    Sketcher.Constraint("Coincident", 10, 2, 11, 1),
    Sketcher.Constraint("Coincident", 11, 2, 8, 1),
    Sketcher.Constraint("Coincident", 12, 2, 13, 1),
    Sketcher.Constraint("Coincident", 13, 2, 14, 1),
    Sketcher.Constraint("Coincident", 14, 2, 15, 1),
    Sketcher.Constraint("Coincident", 15, 2, 12, 1),
    Sketcher.Constraint("Horizontal", 0),
    Sketcher.Constraint("Vertical", 1),
    Sketcher.Constraint("Horizontal", 2),
    Sketcher.Constraint("Vertical", 3),
    Sketcher.Constraint("Horizontal", 4),
    Sketcher.Constraint("Vertical", 5),
    Sketcher.Constraint("Horizontal", 6),
    Sketcher.Constraint("Vertical", 7),
    Sketcher.Constraint("Horizontal", 8),
    Sketcher.Constraint("Vertical", 9),
    Sketcher.Constraint("Horizontal", 10),
    Sketcher.Constraint("Vertical", 11),
    Sketcher.Constraint("Horizontal", 12),
    Sketcher.Constraint("Vertical", 13),
    Sketcher.Constraint("Horizontal", 14),
    Sketcher.Constraint("Vertical", 15),
    Sketcher.Constraint("Symmetric", 1, 2, 8, 2, -1),
    Sketcher.Constraint("Symmetric", 3, 2, 10, 2, -1),
    Sketcher.Constraint("Symmetric", 5, 2, 12, 2, -1),
    Sketcher.Constraint("Symmetric", 7, 2, 14, 2, -1),
    Sketcher.Constraint("Horizontal", 3, 2, 4, 2),
    Sketcher.Constraint("Horizontal", 2, 2, 5, 2),
    Sketcher.Constraint("Equal", 2, 4),
    Sketcher.Constraint("DistanceX", 0, 1, 0, 2, 4.0),
    Sketcher.Constraint("DistanceY", 1, 1, 1, 2, 7.0),
    Sketcher.Constraint("DistanceX", -1, 1, 0, 2, 65.0),
    Sketcher.Constraint("DistanceY", -1, 1, 0, 2, 38.0),
    Sketcher.Constraint("DistanceX", -1, 1, 4, 2, 58.5),
])
sketch9.setExpression("Constraints[39]", "Params.sketch9_width")
sketch9.setExpression("Constraints[40]", "Params.sketch9_height")
pad4 = doc.addObject("PartDesign::Pad", "Pad003")
body.addObject(pad4)
pad4.Profile = sketch9
pad4.setExpression("Length", "Params.pad4_length")

# Sketch on YZ plane
sketch10 = doc.addObject("Sketcher::SketchObject", "Sketch009")
body.addObject(sketch10)
sketch10.AttachmentSupport = (doc.YZ_Plane, [""])
sketch10.MapMode = "FlatFace"
sketch10.AttachmentOffset = App.Placement(App.Vector(0, 0, 85), App.Rotation())
sketch10.addGeometry([
    Part.LineSegment(App.Vector(61, -38, 0), App.Vector(65, -38, 0)),  # 0
    Part.LineSegment(App.Vector(65, -38, 0), App.Vector(65, -45, 0)),  # 1
    Part.LineSegment(App.Vector(65, -45, 0), App.Vector(61, -45, 0)),  # 2
    Part.LineSegment(App.Vector(61, -45, 0), App.Vector(61, -38, 0)),  # 3
    Part.LineSegment(App.Vector(54.5, -38, 0), App.Vector(58.5, -38, 0)),  # 4
    Part.LineSegment(App.Vector(58.5, -38, 0), App.Vector(58.5, -45, 0)),  # 5
    Part.LineSegment(App.Vector(58.5, -45, 0), App.Vector(54.5, -45, 0)),  # 6
    Part.LineSegment(App.Vector(54.5, -45, 0), App.Vector(54.5, -38, 0)),  # 7
    Part.LineSegment(App.Vector(61, 45, 0), App.Vector(65, 45, 0)),  # 8
    Part.LineSegment(App.Vector(65, 45, 0), App.Vector(65, 38, 0)),  # 9
    Part.LineSegment(App.Vector(65, 38, 0), App.Vector(61, 38, 0)),  # 10
    Part.LineSegment(App.Vector(61, 38, 0), App.Vector(61, 45, 0)),  # 11
    Part.LineSegment(App.Vector(54.5, 45, 0), App.Vector(58.5, 45, 0)),  # 12
    Part.LineSegment(App.Vector(58.5, 45, 0), App.Vector(58.5, 38, 0)),  # 13
    Part.LineSegment(App.Vector(58.5, 38, 0), App.Vector(54.5, 38, 0)),  # 14
    Part.LineSegment(App.Vector(54.5, 38, 0), App.Vector(54.5, 45, 0)),  # 15
], False)
sketch10.addConstraint([
    Sketcher.Constraint("Coincident", 0, 2, 1, 1),
    Sketcher.Constraint("Coincident", 1, 2, 2, 1),
    Sketcher.Constraint("Coincident", 2, 2, 3, 1),
    Sketcher.Constraint("Coincident", 3, 2, 0, 1),
    Sketcher.Constraint("Coincident", 4, 2, 5, 1),
    Sketcher.Constraint("Coincident", 5, 2, 6, 1),
    Sketcher.Constraint("Coincident", 6, 2, 7, 1),
    Sketcher.Constraint("Coincident", 7, 2, 4, 1),
    Sketcher.Constraint("Coincident", 8, 2, 9, 1),
    Sketcher.Constraint("Coincident", 9, 2, 10, 1),
    Sketcher.Constraint("Coincident", 10, 2, 11, 1),
    Sketcher.Constraint("Coincident", 11, 2, 8, 1),
    Sketcher.Constraint("Coincident", 12, 2, 13, 1),
    Sketcher.Constraint("Coincident", 13, 2, 14, 1),
    Sketcher.Constraint("Coincident", 14, 2, 15, 1),
    Sketcher.Constraint("Coincident", 15, 2, 12, 1),
    Sketcher.Constraint("Horizontal", 0),
    Sketcher.Constraint("Vertical", 1),
    Sketcher.Constraint("Horizontal", 2),
    Sketcher.Constraint("Vertical", 3),
    Sketcher.Constraint("Horizontal", 4),
    Sketcher.Constraint("Vertical", 5),
    Sketcher.Constraint("Horizontal", 6),
    Sketcher.Constraint("Vertical", 7),
    Sketcher.Constraint("Horizontal", 8),
    Sketcher.Constraint("Vertical", 9),
    Sketcher.Constraint("Horizontal", 10),
    Sketcher.Constraint("Vertical", 11),
    Sketcher.Constraint("Horizontal", 12),
    Sketcher.Constraint("Vertical", 13),
    Sketcher.Constraint("Horizontal", 14),
    Sketcher.Constraint("Vertical", 15),
    Sketcher.Constraint("Symmetric", 1, 2, 8, 2, -1),
    Sketcher.Constraint("Symmetric", 3, 2, 10, 2, -1),
    Sketcher.Constraint("Symmetric", 5, 2, 12, 2, -1),
    Sketcher.Constraint("Symmetric", 7, 2, 14, 2, -1),
    Sketcher.Constraint("Horizontal", 3, 2, 4, 2),
    Sketcher.Constraint("Horizontal", 2, 2, 5, 2),
    Sketcher.Constraint("Equal", 2, 4),
    Sketcher.Constraint("DistanceX", 0, 1, 0, 2, 4.0),
    Sketcher.Constraint("DistanceY", 1, 2, 1, 1, 7.0),
    Sketcher.Constraint("DistanceX", -1, 1, 0, 2, 65.0),
    Sketcher.Constraint("DistanceY", 0, 2, -1, 1, 38.0),
    Sketcher.Constraint("DistanceX", -1, 1, 4, 2, 58.5),
])
sketch10.setExpression("Constraints[39]", "Params.sketch10_width")
sketch10.setExpression("Constraints[40]", "Params.sketch10_height")
pad5 = doc.addObject("PartDesign::Pad", "Pad004")
body.addObject(pad5)
pad5.Profile = sketch10
pad5.setExpression("Length", "Params.pad5_length")
pad5.Reversed = True

# Sketch on XZ plane
sketch11 = doc.addObject("Sketcher::SketchObject", "Sketch010")
body.addObject(sketch11)
sketch11.AttachmentSupport = (doc.XZ_Plane, [""])
sketch11.MapMode = "FlatFace"
sketch11.AttachmentOffset = App.Placement(App.Vector(0, 0, -65), App.Rotation())
sketch11.addGeometry([
    Part.Circle(App.Vector(-81.5, -41.5, 0), App.Vector(0, 0, 1), 1.75),
    Part.Circle(App.Vector(81.5, -41.5, 0), App.Vector(0, 0, 1), 1.75),
    Part.Circle(App.Vector(-81.5, 41.5, 0), App.Vector(0, 0, 1), 1.75),
    Part.Circle(App.Vector(81.5, 41.5, 0), App.Vector(0, 0, 1), 1.75),
], False)
sketch11.addConstraint([
    Sketcher.Constraint("Equal", 0, 1),
    Sketcher.Constraint("Equal", 1, 2),
    Sketcher.Constraint("Equal", 2, 3),
    Sketcher.Constraint("Symmetric", 1, 3, 2, 3, -1, 1),
    Sketcher.Constraint("Symmetric", 0, 3, 3, 3, -1, 1),
    Sketcher.Constraint("Symmetric", 0, 3, 1, 3, -2),
    Sketcher.Constraint("Diameter", 0, 3.5),
    Sketcher.Constraint("DistanceX", 0, 3, 1, 3, 163.0),
    Sketcher.Constraint("DistanceY", 0, 3, 2, 3, 83.0),
])
sketch11.setExpression("Constraints[6]", "Params.sketch11_diameter")
pocket6 = doc.addObject("PartDesign::Pocket", "Pocket005")
body.addObject(pocket6)
pocket6.Profile = sketch11
pocket6.setExpression("Length", "Params.pocket6_length")
pocket6.Reversed = True
doc.recompute()

fillet = doc.addObject("PartDesign::Fillet", "Fillet")
body.addObject(fillet)
fillet.Base = (pocket6, edges_at(pocket6, [
    (68, 20, -35),
    (-38, 20, -35),
    (38, 20, -35),
    (-68, 20, -35),
    (-68, 20, -25),
    (38, 20, -25),
    (-38, 20, -25),
    (68, 20, -25),
    (53, 40, -25),
    (68, 40, -30),
    (53, 40, -35),
    (38, 40, -30),
    (-53, 40, -25),
    (-68, 40, -30),
    (-53, 40, -35),
    (-38, 40, -30),
]))
fillet.setExpression("Radius", "Params.fillet_radius")
doc.recompute()

fillet2 = doc.addObject("PartDesign::Fillet", "Fillet001")
body.addObject(fillet2)
fillet2.Base = (fillet, edges_at(fillet, [
    (53, 5, -22),
    (71, 5, -30),
    (-53, 5, -22),
    (-35, 5, -30),
    (35, 5, -30),
    (-71, 5, -30),
    (-53, 5, -38),
    (53, 5, -38),
    (17.5, 60, 2.5),
    (-17.5, 60, 2.5),
    (17.5, 60, -2.5),
    (-17.5, 60, -2.5),
    (-85, 56.5, 38),
    (-85, 63, 38),
    (-78, 56.5, 45),
    (-78, 63, 45),
    (85, 63, 38),
    (78, 63, 45),
    (78, 56.5, 45),
    (85, 56.5, 38),
    (85, 63, -38),
    (85, 56.5, -38),
    (78, 63, -45),
    (78, 56.5, -45),
    (-85, 56.5, -38),
    (-85, 63, -38),
    (-78, 56.5, -45),
    (-78, 63, -45),
]))
fillet2.setExpression("Radius", "Params.fillet2_radius")
doc.recompute()

fillet3 = doc.addObject("PartDesign::Fillet", "Fillet002")
body.addObject(fillet3)
fillet3.Base = (fillet2, edges_at(fillet2, [
    (-67.561, 0, -25.439),
    (-53, 0, -25),
    (-38.439, 0, -25.439),
    (-38, 0, -30),
    (-38.439, 0, -34.561),
    (-53, 0, -35),
    (-67.561, 0, -34.561),
    (-68, 0, -30),
    (38, 0, -30),
    (38.439, 0, -25.439),
    (53, 0, -25),
    (67.561, 0, -25.439),
    (68, 0, -30),
    (67.561, 0, -34.561),
    (53, 0, -35),
    (38.439, 0, -34.561),
]))
fillet3.setExpression("Radius", "Params.fillet3_radius")
doc.recompute()

fillet4 = doc.addObject("PartDesign::Fillet", "Fillet003")
body.addObject(fillet4)
fillet4.Base = (fillet3, edges_at(fillet3, [(-79, 0, 10), (27, 0, 10)]))
fillet4.setExpression("Radius", "Params.fillet4_radius")
doc.recompute()

fillet5 = doc.addObject("PartDesign::Fillet", "Fillet004")
body.addObject(fillet5)
fillet5.Base = (fillet4, edges_at(fillet4, [
    (-90, 35, 50),
    (90, 35, 50),
    (90, 35, -50),
    (-90, 35, -50),
]))
fillet5.setExpression("Radius", "Params.fillet5_radius")
doc.recompute()

chamfer = doc.addObject("PartDesign::Chamfer", "Chamfer")
body.addObject(chamfer)
chamfer.Base = (fillet5, edges_at(fillet5, [
    (0, 0, 50),
    (88.536, 0, 48.536),
    (90, 0, 0),
    (88.536, 0, -48.536),
    (0, 0, -50),
    (-88.536, 0, 48.536),
    (-90, 0, 0),
    (-88.536, 0, -48.536),
    (0, 70, 50),
    (-88.536, 70, 48.536),
    (-90, 70, 0),
    (-88.536, 70, -48.536),
    (0, 70, -50),
    (88.536, 70, -48.536),
    (90, 70, 0),
    (88.536, 70, 48.536),
]))
chamfer.setExpression("Size", "Params.chamfer_size")

# Sketch on XY plane
sketch12 = doc.addObject("Sketcher::SketchObject", "Sketch011")
body.addObject(sketch12)
sketch12.AttachmentSupport = (doc.XY_Plane, [""])
sketch12.MapMode = "FlatFace"
sketch12.AttachmentOffset = App.Placement(App.Vector(0, 0, -45), App.Rotation())
sketch12.addGeometry(Part.Circle(App.Vector(5.5, 39, 0), App.Vector(0, 0, 1), 1.75), False)
sketch12.addConstraint([
    Sketcher.Constraint("Diameter", 0, 3.5),
    Sketcher.Constraint("DistanceY", -1, 1, 0, 3, 39.0),
    Sketcher.Constraint("DistanceX", -1, 1, 0, 3, 5.5),
])
sketch12.setExpression("Constraints[0]", "Params.sketch12_diameter")
pocket7 = doc.addObject("PartDesign::Pocket", "Pocket006")
body.addObject(pocket7)
pocket7.Profile = sketch12
pocket7.setExpression("Length", "Params.pocket7_length")

# Sketch on XY plane
sketch13 = doc.addObject("Sketcher::SketchObject", "Sketch012")
body.addObject(sketch13)
sketch13.AttachmentSupport = (doc.XY_Plane, [""])
sketch13.MapMode = "FlatFace"
sketch13.AttachmentOffset = App.Placement(App.Vector(0, 0, -50), App.Rotation())
sketch13.addGeometry([
    Part.Circle(App.Vector(-74, 13, 0), App.Vector(0, 0, 1), 8.5),
    Part.Circle(App.Vector(74, 13, 0), App.Vector(0, 0, 1), 8.5),
    Part.Circle(App.Vector(74, 57, 0), App.Vector(0, 0, 1), 8.5),
    Part.Circle(App.Vector(-74, 57, 0), App.Vector(0, 0, 1), 8.5),
], False)
sketch13.addConstraint([
    Sketcher.Constraint("Equal", 0, 1),
    Sketcher.Constraint("Equal", 1, 2),
    Sketcher.Constraint("Equal", 2, 3),
    Sketcher.Constraint("Symmetric", 0, 3, 1, 3, -2),
    Sketcher.Constraint("Symmetric", 2, 3, 3, 3, -2),
    Sketcher.Constraint("Vertical", 1, 3, 2, 3),
    Sketcher.Constraint("Diameter", 0, 17.0),
    Sketcher.Constraint("DistanceX", 0, 3, -1, 1, 74.0),
    Sketcher.Constraint("DistanceY", -1, 1, 0, 3, 13.0),
    Sketcher.Constraint("DistanceY", -1, 1, 2, 3, 57.0),
])
sketch13.setExpression("Constraints[6]", "Params.sketch13_diameter")
pocket8 = doc.addObject("PartDesign::Pocket", "Pocket007")
body.addObject(pocket8)
pocket8.Profile = sketch13
pocket8.setExpression("Length", "Params.pocket8_length")
pocket8.Reversed = True

doc.recompute()
